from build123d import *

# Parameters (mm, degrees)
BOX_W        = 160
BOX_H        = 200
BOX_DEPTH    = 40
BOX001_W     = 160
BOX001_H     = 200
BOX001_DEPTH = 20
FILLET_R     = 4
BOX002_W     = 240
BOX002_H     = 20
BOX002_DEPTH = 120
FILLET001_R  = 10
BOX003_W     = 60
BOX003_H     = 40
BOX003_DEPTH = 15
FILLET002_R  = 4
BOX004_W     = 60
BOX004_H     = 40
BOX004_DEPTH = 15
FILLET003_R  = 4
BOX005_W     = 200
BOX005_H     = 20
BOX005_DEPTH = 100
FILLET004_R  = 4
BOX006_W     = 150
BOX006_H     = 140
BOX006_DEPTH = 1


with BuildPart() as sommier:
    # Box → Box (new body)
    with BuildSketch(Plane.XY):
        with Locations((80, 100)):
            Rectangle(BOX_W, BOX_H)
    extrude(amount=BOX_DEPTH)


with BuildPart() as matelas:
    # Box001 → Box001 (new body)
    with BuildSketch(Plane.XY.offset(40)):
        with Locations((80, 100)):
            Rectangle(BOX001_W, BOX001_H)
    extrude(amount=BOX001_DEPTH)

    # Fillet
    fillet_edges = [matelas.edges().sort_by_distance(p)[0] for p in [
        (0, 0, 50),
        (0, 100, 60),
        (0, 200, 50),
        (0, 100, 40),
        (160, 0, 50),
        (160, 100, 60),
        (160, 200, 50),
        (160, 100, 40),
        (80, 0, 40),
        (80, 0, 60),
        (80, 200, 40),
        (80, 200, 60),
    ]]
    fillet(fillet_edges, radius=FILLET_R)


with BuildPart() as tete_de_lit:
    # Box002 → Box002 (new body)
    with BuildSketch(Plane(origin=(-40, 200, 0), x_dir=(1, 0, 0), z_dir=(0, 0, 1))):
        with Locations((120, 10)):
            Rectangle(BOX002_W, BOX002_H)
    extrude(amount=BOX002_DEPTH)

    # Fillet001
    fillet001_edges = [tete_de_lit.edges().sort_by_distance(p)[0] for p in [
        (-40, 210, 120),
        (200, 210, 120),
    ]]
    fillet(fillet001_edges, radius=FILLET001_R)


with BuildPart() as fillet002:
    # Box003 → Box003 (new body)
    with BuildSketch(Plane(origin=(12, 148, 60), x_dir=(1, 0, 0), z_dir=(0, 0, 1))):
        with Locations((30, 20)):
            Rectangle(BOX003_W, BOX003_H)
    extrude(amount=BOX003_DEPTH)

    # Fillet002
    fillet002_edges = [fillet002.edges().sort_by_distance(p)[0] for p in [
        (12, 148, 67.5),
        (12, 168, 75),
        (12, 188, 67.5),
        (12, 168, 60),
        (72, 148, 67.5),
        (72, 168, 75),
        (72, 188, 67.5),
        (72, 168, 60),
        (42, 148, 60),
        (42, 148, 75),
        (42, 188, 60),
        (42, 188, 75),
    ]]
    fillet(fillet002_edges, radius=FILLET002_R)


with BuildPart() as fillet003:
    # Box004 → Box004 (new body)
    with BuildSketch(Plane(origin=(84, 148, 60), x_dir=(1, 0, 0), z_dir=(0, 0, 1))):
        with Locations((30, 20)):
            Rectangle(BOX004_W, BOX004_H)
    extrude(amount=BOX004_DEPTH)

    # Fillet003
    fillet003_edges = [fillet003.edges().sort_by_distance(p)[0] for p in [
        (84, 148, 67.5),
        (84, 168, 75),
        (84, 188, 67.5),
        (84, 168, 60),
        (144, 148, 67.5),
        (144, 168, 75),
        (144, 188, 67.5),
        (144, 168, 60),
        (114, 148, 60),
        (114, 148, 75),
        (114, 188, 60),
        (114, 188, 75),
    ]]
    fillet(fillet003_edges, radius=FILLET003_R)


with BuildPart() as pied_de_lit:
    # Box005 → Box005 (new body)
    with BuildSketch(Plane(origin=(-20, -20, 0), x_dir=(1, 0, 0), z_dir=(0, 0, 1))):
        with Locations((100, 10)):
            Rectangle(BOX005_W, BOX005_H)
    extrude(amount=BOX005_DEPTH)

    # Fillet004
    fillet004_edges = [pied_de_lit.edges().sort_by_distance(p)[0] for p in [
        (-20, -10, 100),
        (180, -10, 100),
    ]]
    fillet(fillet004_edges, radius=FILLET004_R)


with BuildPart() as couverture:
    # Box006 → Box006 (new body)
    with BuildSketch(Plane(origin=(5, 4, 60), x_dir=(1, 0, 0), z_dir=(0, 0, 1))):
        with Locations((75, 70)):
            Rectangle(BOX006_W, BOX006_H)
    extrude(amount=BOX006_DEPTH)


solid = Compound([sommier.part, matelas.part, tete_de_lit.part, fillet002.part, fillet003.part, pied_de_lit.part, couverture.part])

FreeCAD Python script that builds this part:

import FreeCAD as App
import Part
import Sketcher
from FreeCAD import Vector
Q = App.Units.Quantity


def edges_at(feature, points):
    """Names of the edges that pass closest to the given points."""
    edges = feature.Shape.Edges
    near = lambda p: min(range(len(edges)), key=lambda i: edges[i].distToShape(Part.Vertex(*p))[0])
    return sorted({f"Edge{near(p) + 1}" for p in points})

doc = App.newDocument("Part")
body = doc.addObject("PartDesign::Body", "Body")

sketch1 = body.newObject("Sketcher::SketchObject", "Sketch")
sketch1.AttachmentSupport = (doc.getObject("XY_Plane"), [""])
sketch1.MapMode = "FlatFace"
sketch1.addGeometry(Part.LineSegment(Vector(0, 200, 0), Vector(0, 0, 0)), False)
sketch1.addGeometry(Part.LineSegment(Vector(0, 0, 0), Vector(160, 0, 0)), False)
sketch1.addGeometry(Part.LineSegment(Vector(160, 0, 0), Vector(160, 200, 0)), False)
sketch1.addGeometry(Part.LineSegment(Vector(160, 200, 0), Vector(0, 200, 0)), False)
sketch1.addConstraint(Sketcher.Constraint("Coincident", 0, 2, 1, 1))
sketch1.addConstraint(Sketcher.Constraint("Coincident", 1, 2, 2, 1))
sketch1.addConstraint(Sketcher.Constraint("Coincident", 2, 2, 3, 1))
sketch1.addConstraint(Sketcher.Constraint("Coincident", 3, 2, 0, 1))
sketch1.addConstraint(Sketcher.Constraint("Vertical", 0))
sketch1.addConstraint(Sketcher.Constraint("Horizontal", 1))
sketch1.addConstraint(Sketcher.Constraint("Vertical", 2))
sketch1.addConstraint(Sketcher.Constraint("Horizontal", 3))
sketch1.addConstraint(Sketcher.Constraint("Coincident", 0, 2, -1, 1))
sketch1.addConstraint(Sketcher.Constraint("DistanceX", 1, 1, 1, 2, Q("160 mm")))
sketch1.addConstraint(Sketcher.Constraint("DistanceY", 0, 2, 0, 1, Q("200 mm")))
pad1 = body.newObject("PartDesign::Pad", "Pad")
pad1.Profile = sketch1
pad1.Length = 40
body2 = doc.addObject("PartDesign::Body", "Body001")

sketch2 = body2.newObject("Sketcher::SketchObject", "Sketch001")
sketch2.AttachmentSupport = (doc.getObject("XY_Plane001"), [""])
sketch2.MapMode = "FlatFace"
sketch2.AttachmentOffset = App.Placement(Vector(0, 0, 40), App.Rotation())
sketch2.addGeometry(Part.LineSegment(Vector(0, 200, 0), Vector(0, 0, 0)), False)
sketch2.addGeometry(Part.LineSegment(Vector(0, 0, 0), Vector(160, 0, 0)), False)
sketch2.addGeometry(Part.LineSegment(Vector(160, 0, 0), Vector(160, 200, 0)), False)
sketch2.addGeometry(Part.LineSegment(Vector(160, 200, 0), Vector(0, 200, 0)), False)
sketch2.addConstraint(Sketcher.Constraint("Coincident", 0, 2, 1, 1))
sketch2.addConstraint(Sketcher.Constraint("Coincident", 1, 2, 2, 1))
sketch2.addConstraint(Sketcher.Constraint("Coincident", 2, 2, 3, 1))
sketch2.addConstraint(Sketcher.Constraint("Coincident", 3, 2, 0, 1))
sketch2.addConstraint(Sketcher.Constraint("Vertical", 0))
sketch2.addConstraint(Sketcher.Constraint("Horizontal", 1))
sketch2.addConstraint(Sketcher.Constraint("Vertical", 2))
sketch2.addConstraint(Sketcher.Constraint("Horizontal", 3))
sketch2.addConstraint(Sketcher.Constraint("Coincident", 0, 2, -1, 1))
sketch2.addConstraint(Sketcher.Constraint("DistanceX", 1, 1, 1, 2, Q("160 mm")))
sketch2.addConstraint(Sketcher.Constraint("DistanceY", 0, 2, 0, 1, Q("200 mm")))
pad2 = body2.newObject("PartDesign::Pad", "Pad001")
pad2.Profile = sketch2
pad2.Length = 20
doc.recompute()

fillet = body2.newObject("PartDesign::Fillet", "Fillet")
fillet.Base = (pad2, ["Edge1"])
fillet.UseAllEdges = True
fillet.Radius = 4
body3 = doc.addObject("PartDesign::Body", "Body002")

sketch3 = body3.newObject("Sketcher::SketchObject", "Sketch002")
sketch3.AttachmentSupport = (doc.getObject("XY_Plane002"), [""])
sketch3.MapMode = "FlatFace"
sketch3.addGeometry(Part.LineSegment(Vector(-40, 220, 0), Vector(-40, 200, 0)), False)
sketch3.addGeometry(Part.LineSegment(Vector(-40, 200, 0), Vector(200, 200, 0)), False)
sketch3.addGeometry(Part.LineSegment(Vector(200, 200, 0), Vector(200, 220, 0)), False)
sketch3.addGeometry(Part.LineSegment(Vector(200, 220, 0), Vector(-40, 220, 0)), False)
sketch3.addConstraint(Sketcher.Constraint("Coincident", 0, 2, 1, 1))
sketch3.addConstraint(Sketcher.Constraint("Coincident", 1, 2, 2, 1))
sketch3.addConstraint(Sketcher.Constraint("Coincident", 2, 2, 3, 1))
sketch3.addConstraint(Sketcher.Constraint("Coincident", 3, 2, 0, 1))
sketch3.addConstraint(Sketcher.Constraint("Vertical", 0))
sketch3.addConstraint(Sketcher.Constraint("Horizontal", 1))
sketch3.addConstraint(Sketcher.Constraint("Vertical", 2))
sketch3.addConstraint(Sketcher.Constraint("Horizontal", 3))
sketch3.addConstraint(Sketcher.Constraint("DistanceX", 1, 1, 1, 2, Q("240 mm")))
sketch3.addConstraint(Sketcher.Constraint("DistanceY", 0, 2, 0, 1, Q("20 mm")))
sketch3.addConstraint(Sketcher.Constraint("DistanceX", 0, 2, -1, 1, Q("40 mm")))
sketch3.addConstraint(Sketcher.Constraint("DistanceY", -1, 1, 0, 2, Q("200 mm")))
pad3 = body3.newObject("PartDesign::Pad", "Pad002")
pad3.Profile = sketch3
pad3.Length = 120
doc.recompute()

fillet2 = body3.newObject("PartDesign::Fillet", "Fillet001")
fillet2.Base = (pad3, edges_at(pad3, [(-40, 210, 120), (200, 210, 120)]))
fillet2.Radius = 10
body4 = doc.addObject("PartDesign::Body", "Body003")

sketch4 = body4.newObject("Sketcher::SketchObject", "Sketch003")
sketch4.AttachmentSupport = (doc.getObject("XY_Plane003"), [""])
sketch4.MapMode = "FlatFace"
sketch4.AttachmentOffset = App.Placement(Vector(0, 0, 60), App.Rotation())
sketch4.addGeometry(Part.LineSegment(Vector(12, 188, 0), Vector(12, 148, 0)), False)
sketch4.addGeometry(Part.LineSegment(Vector(12, 148, 0), Vector(72, 148, 0)), False)
sketch4.addGeometry(Part.LineSegment(Vector(72, 148, 0), Vector(72, 188, 0)), False)
sketch4.addGeometry(Part.LineSegment(Vector(72, 188, 0), Vector(12, 188, 0)), False)
sketch4.addConstraint(Sketcher.Constraint("Coincident", 0, 2, 1, 1))
sketch4.addConstraint(Sketcher.Constraint("Coincident", 1, 2, 2, 1))
sketch4.addConstraint(Sketcher.Constraint("Coincident", 2, 2, 3, 1))
sketch4.addConstraint(Sketcher.Constraint("Coincident", 3, 2, 0, 1))
sketch4.addConstraint(Sketcher.Constraint("Vertical", 0))
sketch4.addConstraint(Sketcher.Constraint("Horizontal", 1))
sketch4.addConstraint(Sketcher.Constraint("Vertical", 2))
sketch4.addConstraint(Sketcher.Constraint("Horizontal", 3))
sketch4.addConstraint(Sketcher.Constraint("DistanceX", 1, 1, 1, 2, Q("60 mm")))
sketch4.addConstraint(Sketcher.Constraint("DistanceY", 0, 2, 0, 1, Q("40 mm")))
sketch4.addConstraint(Sketcher.Constraint("DistanceX", -1, 1, 0, 2, Q("12 mm")))
sketch4.addConstraint(Sketcher.Constraint("DistanceY", -1, 1, 0, 2, Q("148 mm")))
pad4 = body4.newObject("PartDesign::Pad", "Pad003")
pad4.Profile = sketch4
pad4.Length = 15
doc.recompute()

fillet3 = body4.newObject("PartDesign::Fillet", "Fillet002")
fillet3.Base = (pad4, ["Edge1"])
fillet3.UseAllEdges = True
fillet3.Radius = 4
body5 = doc.addObject("PartDesign::Body", "Body004")

sketch5 = body5.newObject("Sketcher::SketchObject", "Sketch004")
sketch5.AttachmentSupport = (doc.getObject("XY_Plane004"), [""])
sketch5.MapMode = "FlatFace"
sketch5.AttachmentOffset = App.Placement(Vector(0, 0, 60), App.Rotation())
sketch5.addGeometry(Part.LineSegment(Vector(84, 188, 0), Vector(84, 148, 0)), False)
sketch5.addGeometry(Part.LineSegment(Vector(84, 148, 0), Vector(144, 148, 0)), False)
sketch5.addGeometry(Part.LineSegment(Vector(144, 148, 0), Vector(144, 188, 0)), False)
sketch5.addGeometry(Part.LineSegment(Vector(144, 188, 0), Vector(84, 188, 0)), False)
sketch5.addConstraint(Sketcher.Constraint("Coincident", 0, 2, 1, 1))
sketch5.addConstraint(Sketcher.Constraint("Coincident", 1, 2, 2, 1))
sketch5.addConstraint(Sketcher.Constraint("Coincident", 2, 2, 3, 1))
sketch5.addConstraint(Sketcher.Constraint("Coincident", 3, 2, 0, 1))
sketch5.addConstraint(Sketcher.Constraint("Vertical", 0))
sketch5.addConstraint(Sketcher.Constraint("Horizontal", 1))
sketch5.addConstraint(Sketcher.Constraint("Vertical", 2))
sketch5.addConstraint(Sketcher.Constraint("Horizontal", 3))
sketch5.addConstraint(Sketcher.Constraint("DistanceX", 1, 1, 1, 2, Q("60 mm")))
sketch5.addConstraint(Sketcher.Constraint("DistanceY", 0, 2, 0, 1, Q("40 mm")))
sketch5.addConstraint(Sketcher.Constraint("DistanceX", -1, 1, 0, 2, Q("84 mm")))
sketch5.addConstraint(Sketcher.Constraint("DistanceY", -1, 1, 0, 2, Q("148 mm")))
pad5 = body5.newObject("PartDesign::Pad", "Pad004")
pad5.Profile = sketch5
pad5.Length = 15
doc.recompute()

fillet4 = body5.newObject("PartDesign::Fillet", "Fillet003")
fillet4.Base = (pad5, ["Edge1"])
fillet4.UseAllEdges = True
fillet4.Radius = 4
body6 = doc.addObject("PartDesign::Body", "Body005")

sketch6 = body6.newObject("Sketcher::SketchObject", "Sketch005")
sketch6.AttachmentSupport = (doc.getObject("XY_Plane005"), [""])
sketch6.MapMode = "FlatFace"
sketch6.addGeometry(Part.LineSegment(Vector(-20, 0, 0), Vector(-20, -20, 0)), False)
sketch6.addGeometry(Part.LineSegment(Vector(-20, -20, 0), Vector(180, -20, 0)), False)
sketch6.addGeometry(Part.LineSegment(Vector(180, -20, 0), Vector(180, 0, 0)), False)
sketch6.addGeometry(Part.LineSegment(Vector(180, 0, 0), Vector(-20, 0, 0)), False)
sketch6.addConstraint(Sketcher.Constraint("Coincident", 0, 2, 1, 1))
sketch6.addConstraint(Sketcher.Constraint("Coincident", 1, 2, 2, 1))
sketch6.addConstraint(Sketcher.Constraint("Coincident", 2, 2, 3, 1))
sketch6.addConstraint(Sketcher.Constraint("Coincident", 3, 2, 0, 1))
sketch6.addConstraint(Sketcher.Constraint("Vertical", 0))
sketch6.addConstraint(Sketcher.Constraint("Horizontal", 1))
sketch6.addConstraint(Sketcher.Constraint("Vertical", 2))
sketch6.addConstraint(Sketcher.Constraint("Horizontal", 3))
sketch6.addConstraint(Sketcher.Constraint("PointOnObject", 2, 2, -1))
sketch6.addConstraint(Sketcher.Constraint("DistanceX", 1, 1, 1, 2, Q("200 mm")))
sketch6.addConstraint(Sketcher.Constraint("DistanceY", 0, 2, 0, 1, Q("20 mm")))
sketch6.addConstraint(Sketcher.Constraint("DistanceX", 0, 2, -1, 1, Q("20 mm")))
pad6 = body6.newObject("PartDesign::Pad", "Pad005")
pad6.Profile = sketch6
pad6.Length = 100
doc.recompute()

fillet5 = body6.newObject("PartDesign::Fillet", "Fillet004")
fillet5.Base = (pad6, edges_at(pad6, [(-20, -10, 100), (180, -10, 100)]))
fillet5.Radius = 4
body7 = doc.addObject("PartDesign::Body", "Body006")

sketch7 = body7.newObject("Sketcher::SketchObject", "Sketch006")
sketch7.AttachmentSupport = (doc.getObject("XY_Plane006"), [""])
sketch7.MapMode = "FlatFace"
sketch7.AttachmentOffset = App.Placement(Vector(0, 0, 60), App.Rotation())
sketch7.addGeometry(Part.LineSegment(Vector(5, 144, 0), Vector(5, 4, 0)), False)
sketch7.addGeometry(Part.LineSegment(Vector(5, 4, 0), Vector(155, 4, 0)), False)
sketch7.addGeometry(Part.LineSegment(Vector(155, 4, 0), Vector(155, 144, 0)), False)
sketch7.addGeometry(Part.LineSegment(Vector(155, 144, 0), Vector(5, 144, 0)), False)
sketch7.addConstraint(Sketcher.Constraint("Coincident", 0, 2, 1, 1))
sketch7.addConstraint(Sketcher.Constraint("Coincident", 1, 2, 2, 1))
sketch7.addConstraint(Sketcher.Constraint("Coincident", 2, 2, 3, 1))
sketch7.addConstraint(Sketcher.Constraint("Coincident", 3, 2, 0, 1))
sketch7.addConstraint(Sketcher.Constraint("Vertical", 0))
sketch7.addConstraint(Sketcher.Constraint("Horizontal", 1))
sketch7.addConstraint(Sketcher.Constraint("Vertical", 2))
sketch7.addConstraint(Sketcher.Constraint("Horizontal", 3))
sketch7.addConstraint(Sketcher.Constraint("DistanceX", 1, 1, 1, 2, Q("150 mm")))
sketch7.addConstraint(Sketcher.Constraint("DistanceY", 0, 2, 0, 1, Q("140 mm")))
sketch7.addConstraint(Sketcher.Constraint("DistanceX", -1, 1, 0, 2, Q("5 mm")))
sketch7.addConstraint(Sketcher.Constraint("DistanceY", -1, 1, 0, 2, Q("4 mm")))
pad7 = body7.newObject("PartDesign::Pad", "Pad006")
pad7.Profile = sketch7
pad7.Length = 1

doc.recompute()
